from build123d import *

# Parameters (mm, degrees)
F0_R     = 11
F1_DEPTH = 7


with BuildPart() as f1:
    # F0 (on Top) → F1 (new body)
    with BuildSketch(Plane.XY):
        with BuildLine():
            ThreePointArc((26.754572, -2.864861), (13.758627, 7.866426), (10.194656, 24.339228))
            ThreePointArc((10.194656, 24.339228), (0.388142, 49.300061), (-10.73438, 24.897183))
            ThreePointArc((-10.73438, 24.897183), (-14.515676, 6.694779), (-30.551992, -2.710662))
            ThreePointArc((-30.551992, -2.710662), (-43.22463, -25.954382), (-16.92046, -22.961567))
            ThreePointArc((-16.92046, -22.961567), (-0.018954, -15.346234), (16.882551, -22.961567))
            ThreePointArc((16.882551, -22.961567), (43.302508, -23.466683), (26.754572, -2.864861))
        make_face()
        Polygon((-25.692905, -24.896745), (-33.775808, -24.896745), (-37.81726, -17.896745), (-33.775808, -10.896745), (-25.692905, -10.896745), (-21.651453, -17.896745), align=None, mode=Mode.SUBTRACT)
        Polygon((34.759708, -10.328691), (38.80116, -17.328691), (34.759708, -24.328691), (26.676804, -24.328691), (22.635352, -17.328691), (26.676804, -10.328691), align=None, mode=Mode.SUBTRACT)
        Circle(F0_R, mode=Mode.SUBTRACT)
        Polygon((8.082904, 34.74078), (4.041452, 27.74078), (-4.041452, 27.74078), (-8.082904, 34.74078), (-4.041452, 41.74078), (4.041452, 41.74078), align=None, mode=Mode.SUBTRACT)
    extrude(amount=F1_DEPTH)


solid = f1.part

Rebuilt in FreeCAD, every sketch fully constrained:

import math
import FreeCAD as App
import Part
import Sketcher
Q = App.Units.Quantity


def add_polygon(sketch, points):
    """Adds a closed chain of lines whose ends are joined by coincident constraints."""
    first, n = sketch.GeometryCount, len(points)
    for a, b in zip(points, points[1:] + points[:1]):
        sketch.addGeometry(Part.LineSegment(App.Vector(*a, 0), App.Vector(*b, 0)), False)
    for i in range(n):
        sketch.addConstraint(Sketcher.Constraint("Coincident", first + i, 2, first + (i + 1) % n, 1))

doc = App.newDocument("Part")
params = doc.addObject("Spreadsheet::Sheet", "Params")
for row, (alias, value) in enumerate([
    ("sketch1_diameter", "22 mm"),
    ("pad1_length", "7 mm"),
], start=1):
    params.set(f"A{row}", alias)
    params.set(f"B{row}", "=" + value)
    params.setAlias(f"B{row}", alias)

body = doc.addObject("PartDesign::Body", "Body")

# Sketch on XY plane
sketch1 = body.newObject("Sketcher::SketchObject", "Sketch")
sketch1.AttachmentSupport = (doc.getObject("XY_Plane"), [""])
sketch1.MapMode = "FlatFace"
sketch1.addGeometry(Part.ArcOfCircle(Part.Circle(App.Vector(35.73241, 21.242503, 0), App.Vector(0, 0, 1), 25.724825), math.radians(173.086033), math.radians(249.574135)), False)  # 0
sketch1.addGeometry(Part.ArcOfCircle(Part.Circle(App.Vector(0, 34.74078, 0), App.Vector(0, 0, 1), 14.564454), math.radians(-45.575536), math.radians(222.52132)), False)  # 1
sketch1.addGeometry(Part.ArcOfCircle(Part.Circle(App.Vector(-33.128022, 20.055192, 0), App.Vector(0, 0, 1), 22.911134), math.radians(-83.544257), math.radians(12.200767)), False)  # 2
sketch1.addGeometry(Part.ArcOfCircle(Part.Circle(App.Vector(-30.850023, -17.624639, 0), App.Vector(0, 0, 1), 14.916954), math.radians(88.855192), math.radians(339.036325)), False)  # 3
sketch1.addGeometry(Part.ArcOfCircle(Part.Circle(App.Vector(-0.018954, -37.90954, 0), App.Vector(0, 0, 1), 22.563306), math.radians(41.490081), math.radians(138.509919)), False)  # 4
sketch1.addGeometry(Part.ArcOfCircle(Part.Circle(App.Vector(30.210655, -17.035627, 0), App.Vector(0, 0, 1), 14.586127), math.radians(-156.029117), math.radians(103.706191)), False)  # 5
add_polygon(sketch1, [(-21.651453, -17.896745), (-25.692905, -24.896745), (-33.775808, -24.896745), (-37.81726, -17.896745), (-33.775808, -10.896745), (-25.692905, -10.896745)])  # lines 6-11
sketch1.addGeometry(Part.Circle(App.Vector(0, 0, 0), App.Vector(0, 0, 1), 11), False)  # 12
add_polygon(sketch1, [(26.676804, -10.328691), (34.759708, -10.328691), (38.80116, -17.328691), (34.759708, -24.328691), (26.676804, -24.328691), (22.635352, -17.328691)])  # lines 13-18
add_polygon(sketch1, [(4.041452, 41.74078), (8.082904, 34.74078), (4.041452, 27.74078), (-4.041452, 27.74078), (-8.082904, 34.74078), (-4.041452, 41.74078)])  # lines 19-24
sketch1.addConstraint([
    Sketcher.Constraint("Coincident", 0, 1, 1, 1),
    Sketcher.Constraint("Coincident", 1, 2, 2, 2),
    Sketcher.Constraint("Coincident", 2, 1, 3, 1),
    Sketcher.Constraint("Coincident", 3, 2, 4, 2),
    Sketcher.Constraint("Coincident", 4, 1, 5, 1),
    Sketcher.Constraint("Coincident", 5, 2, 0, 2),
    Sketcher.Constraint("Horizontal", 7),
    Sketcher.Constraint("Horizontal", 10),
    Sketcher.Constraint("Horizontal", 13),
    Sketcher.Constraint("Horizontal", 16),
    Sketcher.Constraint("Horizontal", 21),
    Sketcher.Constraint("Horizontal", 24),
    Sketcher.Constraint("Coincident", 12, 3, -1, 1),
    Sketcher.Constraint("Symmetric", 19, 2, 22, 2, -2),
    Sketcher.Constraint("PointOnObject", 1, 3, -2),
    Sketcher.Constraint("Parallel", 6, 9),
    Sketcher.Constraint("Parallel", 8, 11),
    Sketcher.Constraint("Parallel", 11, 14),
    Sketcher.Constraint("Parallel", 9, 15),
    Sketcher.Constraint("Parallel", 14, 17),
    Sketcher.Constraint("Parallel", 15, 18),
    Sketcher.Constraint("Parallel", 17, 19),
    Sketcher.Constraint("Parallel", 18, 20),
    Sketcher.Constraint("Parallel", 19, 22),
    Sketcher.Constraint("Parallel", 20, 23),
    Sketcher.Constraint("Horizontal", 3, 2, 4, 1),
    Sketcher.Constraint("Horizontal", 8, 2, 11, 2),
    Sketcher.Constraint("Horizontal", 14, 2, 17, 2),
    Sketcher.Constraint("Horizontal", 1, 3, 19, 2),
    Sketcher.Constraint("Vertical", 7, 2, 9, 2),
    Sketcher.Constraint("Vertical", 6, 2, 10, 2),
    Sketcher.Constraint("Vertical", 13, 2, 15, 2),
    Sketcher.Constraint("Vertical", 21, 2, 23, 2),
    Sketcher.Constraint("Equal", 10, 13),
    Sketcher.Constraint("Equal", 16, 21),
    Sketcher.Constraint("Equal", 11, 14),
    Sketcher.Constraint("Equal", 18, 19),
    Sketcher.Constraint("Diameter", 12, 22.0),
    Sketcher.Constraint("Angle", 6, Q("-120.000001 deg")),
    Sketcher.Constraint("DistanceY", 7, 2, 8, 2, 7.0),
    Sketcher.Constraint("Radius", 0, 25.724825),
    Sketcher.Constraint("Radius", 1, 14.564454),
    Sketcher.Constraint("Radius", 2, 22.911134),
    Sketcher.Constraint("Radius", 3, 14.916954),
    Sketcher.Constraint("Radius", 4, 22.563306),
    Sketcher.Constraint("Radius", 5, 14.586127),
    Sketcher.Constraint("DistanceX", 2, 3, 3, 3, 2.277999),
    Sketcher.Constraint("DistanceX", 0, 1, 5, 3, 20.015999),
    Sketcher.Constraint("DistanceY", 4, 3, 3, 3, 20.284902),
    Sketcher.Constraint("DistanceX", 8, 2, 3, 2, 20.8968),
    Sketcher.Constraint("DistanceX", 4, 1, 17, 2, 5.752801),
    Sketcher.Constraint("DistanceX", 7, 2, 7, 1, 8.082903),
    Sketcher.Constraint("DistanceX", -1, 1, 0, 3, 35.73241),
    Sketcher.Constraint("DistanceY", -1, 1, 1, 3, 34.74078),
    Sketcher.Constraint("DistanceX", 2, 3, -1, 1, 33.128022),
    Sketcher.Constraint("DistanceY", 3, 3, -1, 1, 17.624639),
    Sketcher.Constraint("DistanceX", 1, 2, -1, 1, 10.73438),
    Sketcher.Constraint("DistanceX", 3, 2, -1, 1, 16.92046),
    Sketcher.Constraint("DistanceY", 5, 2, -1, 1, 2.864861),
    Sketcher.Constraint("DistanceY", 13, 2, -1, 1, 10.328691),
    Sketcher.Constraint("DistanceY", 6, 2, -1, 1, 24.896745),
])
sketch1.setExpression("Constraints[55]", "Params.sketch1_diameter")
pad1 = body.newObject("PartDesign::Pad", "Pad")
pad1.Profile = sketch1
pad1.setExpression("Length", "Params.pad1_length")

doc.recompute()
